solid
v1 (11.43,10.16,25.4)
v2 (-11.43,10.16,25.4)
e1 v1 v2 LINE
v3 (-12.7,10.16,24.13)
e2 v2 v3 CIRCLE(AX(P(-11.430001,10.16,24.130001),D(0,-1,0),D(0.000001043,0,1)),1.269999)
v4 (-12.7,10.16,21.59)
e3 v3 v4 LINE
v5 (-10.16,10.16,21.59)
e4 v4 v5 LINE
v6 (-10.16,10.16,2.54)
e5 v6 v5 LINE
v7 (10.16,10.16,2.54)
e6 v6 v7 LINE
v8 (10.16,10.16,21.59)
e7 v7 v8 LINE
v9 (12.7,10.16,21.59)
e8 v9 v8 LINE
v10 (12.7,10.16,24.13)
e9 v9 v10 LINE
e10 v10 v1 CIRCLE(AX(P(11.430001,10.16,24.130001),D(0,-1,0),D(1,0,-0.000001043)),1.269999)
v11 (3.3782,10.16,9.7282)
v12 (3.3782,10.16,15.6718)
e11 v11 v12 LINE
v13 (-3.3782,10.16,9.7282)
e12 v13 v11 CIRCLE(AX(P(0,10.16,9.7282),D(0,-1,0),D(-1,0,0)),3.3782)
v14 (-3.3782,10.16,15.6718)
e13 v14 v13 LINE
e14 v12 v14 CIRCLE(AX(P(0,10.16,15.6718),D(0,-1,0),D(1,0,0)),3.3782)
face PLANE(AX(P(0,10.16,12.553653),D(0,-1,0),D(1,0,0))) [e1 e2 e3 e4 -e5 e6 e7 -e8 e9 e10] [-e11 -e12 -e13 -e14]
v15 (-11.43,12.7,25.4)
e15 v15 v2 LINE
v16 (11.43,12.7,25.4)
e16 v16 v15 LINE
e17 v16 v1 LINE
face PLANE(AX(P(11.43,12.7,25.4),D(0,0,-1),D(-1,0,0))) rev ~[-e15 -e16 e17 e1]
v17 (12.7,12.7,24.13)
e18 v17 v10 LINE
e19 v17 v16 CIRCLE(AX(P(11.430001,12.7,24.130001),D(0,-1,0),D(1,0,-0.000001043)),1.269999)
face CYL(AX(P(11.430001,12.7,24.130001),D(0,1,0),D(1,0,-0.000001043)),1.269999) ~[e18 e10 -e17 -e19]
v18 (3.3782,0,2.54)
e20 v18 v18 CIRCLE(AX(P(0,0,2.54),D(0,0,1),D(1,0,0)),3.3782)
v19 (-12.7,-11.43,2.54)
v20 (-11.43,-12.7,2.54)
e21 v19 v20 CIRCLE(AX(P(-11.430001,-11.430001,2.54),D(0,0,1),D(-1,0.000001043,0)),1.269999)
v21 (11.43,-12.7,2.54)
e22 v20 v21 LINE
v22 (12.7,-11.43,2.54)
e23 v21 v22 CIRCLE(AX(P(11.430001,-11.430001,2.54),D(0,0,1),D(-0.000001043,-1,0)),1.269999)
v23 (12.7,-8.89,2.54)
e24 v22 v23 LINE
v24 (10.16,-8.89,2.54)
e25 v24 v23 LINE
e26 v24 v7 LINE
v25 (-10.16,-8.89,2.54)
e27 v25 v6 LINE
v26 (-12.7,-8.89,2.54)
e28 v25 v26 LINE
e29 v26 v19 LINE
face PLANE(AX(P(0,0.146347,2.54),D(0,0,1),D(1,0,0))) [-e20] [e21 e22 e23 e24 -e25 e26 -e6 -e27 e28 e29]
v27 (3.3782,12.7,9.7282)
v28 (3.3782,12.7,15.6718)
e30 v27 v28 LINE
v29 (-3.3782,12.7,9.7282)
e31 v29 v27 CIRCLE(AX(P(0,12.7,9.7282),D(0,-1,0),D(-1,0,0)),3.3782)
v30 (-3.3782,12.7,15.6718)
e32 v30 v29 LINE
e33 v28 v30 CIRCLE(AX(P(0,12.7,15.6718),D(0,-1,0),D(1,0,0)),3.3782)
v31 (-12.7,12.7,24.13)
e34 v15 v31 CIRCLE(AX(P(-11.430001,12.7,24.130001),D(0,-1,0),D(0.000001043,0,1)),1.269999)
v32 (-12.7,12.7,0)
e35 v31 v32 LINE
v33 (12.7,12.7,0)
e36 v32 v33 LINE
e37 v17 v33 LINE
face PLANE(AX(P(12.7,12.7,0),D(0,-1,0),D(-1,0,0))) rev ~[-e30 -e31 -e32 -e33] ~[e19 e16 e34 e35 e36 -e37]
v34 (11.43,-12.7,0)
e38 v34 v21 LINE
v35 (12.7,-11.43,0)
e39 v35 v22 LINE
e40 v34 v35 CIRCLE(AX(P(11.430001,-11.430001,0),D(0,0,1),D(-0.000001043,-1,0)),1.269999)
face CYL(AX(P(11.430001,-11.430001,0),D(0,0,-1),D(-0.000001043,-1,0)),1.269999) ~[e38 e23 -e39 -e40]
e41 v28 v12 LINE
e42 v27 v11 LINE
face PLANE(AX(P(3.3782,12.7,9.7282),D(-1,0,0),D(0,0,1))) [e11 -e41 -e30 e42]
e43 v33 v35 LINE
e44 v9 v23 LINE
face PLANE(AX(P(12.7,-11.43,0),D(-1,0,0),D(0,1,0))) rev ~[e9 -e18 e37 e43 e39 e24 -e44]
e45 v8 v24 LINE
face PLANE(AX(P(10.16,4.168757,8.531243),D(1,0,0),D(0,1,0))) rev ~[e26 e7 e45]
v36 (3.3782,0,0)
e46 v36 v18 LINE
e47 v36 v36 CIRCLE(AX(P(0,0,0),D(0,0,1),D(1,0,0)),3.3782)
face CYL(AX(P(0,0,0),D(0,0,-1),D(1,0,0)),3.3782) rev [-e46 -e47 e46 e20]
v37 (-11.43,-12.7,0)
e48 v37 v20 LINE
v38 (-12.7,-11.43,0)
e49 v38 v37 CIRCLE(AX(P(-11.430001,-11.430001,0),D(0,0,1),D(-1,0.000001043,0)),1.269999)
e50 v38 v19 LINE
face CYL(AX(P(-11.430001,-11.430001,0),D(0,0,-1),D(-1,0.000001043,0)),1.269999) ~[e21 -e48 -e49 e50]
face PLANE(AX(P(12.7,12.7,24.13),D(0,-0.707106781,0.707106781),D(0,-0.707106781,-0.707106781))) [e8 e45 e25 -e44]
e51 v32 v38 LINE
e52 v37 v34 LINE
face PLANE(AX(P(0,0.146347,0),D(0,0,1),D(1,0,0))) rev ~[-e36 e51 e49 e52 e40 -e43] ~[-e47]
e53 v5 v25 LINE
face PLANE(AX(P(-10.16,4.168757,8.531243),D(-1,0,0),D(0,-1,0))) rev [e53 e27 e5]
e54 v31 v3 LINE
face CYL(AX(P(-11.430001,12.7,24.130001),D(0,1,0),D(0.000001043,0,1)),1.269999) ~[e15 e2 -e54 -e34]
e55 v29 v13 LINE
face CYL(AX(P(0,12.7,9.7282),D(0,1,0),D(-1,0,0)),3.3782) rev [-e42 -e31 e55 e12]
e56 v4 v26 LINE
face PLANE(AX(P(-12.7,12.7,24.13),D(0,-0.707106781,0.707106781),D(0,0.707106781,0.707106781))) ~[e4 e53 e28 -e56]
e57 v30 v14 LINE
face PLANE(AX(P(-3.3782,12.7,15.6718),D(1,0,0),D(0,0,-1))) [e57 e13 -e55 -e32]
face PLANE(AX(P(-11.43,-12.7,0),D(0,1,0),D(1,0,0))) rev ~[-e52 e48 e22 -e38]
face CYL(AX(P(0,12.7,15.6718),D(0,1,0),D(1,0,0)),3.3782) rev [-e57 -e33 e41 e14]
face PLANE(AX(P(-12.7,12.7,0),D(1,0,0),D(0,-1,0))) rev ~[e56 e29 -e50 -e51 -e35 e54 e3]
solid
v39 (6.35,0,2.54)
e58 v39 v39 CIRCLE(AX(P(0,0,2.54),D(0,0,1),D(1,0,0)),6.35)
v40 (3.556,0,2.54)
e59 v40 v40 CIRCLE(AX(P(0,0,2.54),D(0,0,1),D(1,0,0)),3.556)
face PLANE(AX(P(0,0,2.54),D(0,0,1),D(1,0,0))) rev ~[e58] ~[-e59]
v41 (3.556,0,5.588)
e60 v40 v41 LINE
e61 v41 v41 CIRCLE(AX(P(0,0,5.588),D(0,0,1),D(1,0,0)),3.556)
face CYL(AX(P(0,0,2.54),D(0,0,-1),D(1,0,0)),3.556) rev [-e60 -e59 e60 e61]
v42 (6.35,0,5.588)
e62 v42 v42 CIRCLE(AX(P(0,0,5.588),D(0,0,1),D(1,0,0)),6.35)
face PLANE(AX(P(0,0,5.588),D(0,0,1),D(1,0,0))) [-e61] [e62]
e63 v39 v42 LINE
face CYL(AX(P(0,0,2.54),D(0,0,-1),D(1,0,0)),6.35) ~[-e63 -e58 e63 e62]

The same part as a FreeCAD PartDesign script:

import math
import FreeCAD as App
import Part
import Sketcher
Q = App.Units.Quantity

doc = App.newDocument("Part")
body = doc.addObject("PartDesign::Body", "Body")

sketch1 = body.newObject("Sketcher::SketchObject", "Sketch")
sketch1.AttachmentSupport = (doc.getObject("XY_Plane"), [""])
sketch1.MapMode = "FlatFace"
sketch1.addGeometry(Part.LineSegment(App.Vector(-12.7, 12.7, 0), App.Vector(-12.7, -11.4, 0)), False)
sketch1.addGeometry(Part.ArcOfCircle(Part.Circle(App.Vector(-11.4, -11.4, 0), App.Vector(0, 0, 1), 1.3), math.radians(180), math.radians(270)), False)
sketch1.addGeometry(Part.LineSegment(App.Vector(-11.4, -12.7, 0), App.Vector(11.4, -12.7, 0)), False)
sketch1.addGeometry(Part.ArcOfCircle(Part.Circle(App.Vector(11.4, -11.4, 0), App.Vector(0, 0, 1), 1.3), math.radians(-90), math.radians(0)), False)
sketch1.addGeometry(Part.LineSegment(App.Vector(12.7, -11.4, 0), App.Vector(12.7, 12.7, 0)), False)
sketch1.addGeometry(Part.LineSegment(App.Vector(12.7, 12.7, 0), App.Vector(-12.7, 12.7, 0)), False)
sketch1.addGeometry(Part.Circle(App.Vector(0, 0, 0), App.Vector(0, 0, 1), 3.4), False)
sketch1.addConstraint(Sketcher.Constraint("Tangent", 0, 2, 1, 1))
sketch1.addConstraint(Sketcher.Constraint("Tangent", 1, 2, 2, 1))
sketch1.addConstraint(Sketcher.Constraint("Tangent", 2, 2, 3, 1))
sketch1.addConstraint(Sketcher.Constraint("Tangent", 3, 2, 4, 1))
sketch1.addConstraint(Sketcher.Constraint("Coincident", 4, 2, 5, 1))
sketch1.addConstraint(Sketcher.Constraint("Coincident", 5, 2, 0, 1))
sketch1.addConstraint(Sketcher.Constraint("Vertical", 0))
sketch1.addConstraint(Sketcher.Constraint("Horizontal", 2))
sketch1.addConstraint(Sketcher.Constraint("Vertical", 4))
sketch1.addConstraint(Sketcher.Constraint("Horizontal", 5))
sketch1.addConstraint(Sketcher.Constraint("Coincident", 6, 3, -1, 1))
sketch1.addConstraint(Sketcher.Constraint("Equal", 1, 3))
sketch1.addConstraint(Sketcher.Constraint("DistanceX", 5, 2, 5, 1, Q("1 in")))
sketch1.addConstraint(Sketcher.Constraint("Radius", 1, Q("0.0499999 in")))
sketch1.addConstraint(Sketcher.Constraint("Diameter", 6, Q("0.266 in")))
sketch1.addConstraint(Sketcher.Constraint("DistanceY", 2, 2, 4, 2, Q("1 in")))
sketch1.addConstraint(Sketcher.Constraint("DistanceX", 0, 2, -1, 1, Q("0.5 in")))
sketch1.addConstraint(Sketcher.Constraint("DistanceY", 1, 2, -1, 1, Q("0.5 in")))
pad1 = body.newObject("PartDesign::Pad", "Pad")
pad1.Profile = sketch1
pad1.Length = Q("0.1 in")

sketch2 = body.newObject("Sketcher::SketchObject", "Sketch001")
sketch2.AttachmentSupport = (doc.getObject("XZ_Plane"), [""])
sketch2.MapMode = "FlatFace"
sketch2.AttachmentOffset = App.Placement(App.Vector(0, 0, -0.5 * 25.4), App.Rotation())
sketch2.addGeometry(Part.LineSegment(App.Vector(-12.7, 0, 0), App.Vector(12.7, 0, 0)), False)
sketch2.addGeometry(Part.LineSegment(App.Vector(12.7, 0, 0), App.Vector(12.7, 24.1, 0)), False)
sketch2.addGeometry(Part.ArcOfCircle(Part.Circle(App.Vector(11.4, 24.1, 0), App.Vector(0, 0, 1), 1.3), math.radians(0), math.radians(90)), False)
sketch2.addGeometry(Part.LineSegment(App.Vector(11.4, 25.4, 0), App.Vector(-11.4, 25.4, 0)), False)
sketch2.addGeometry(Part.ArcOfCircle(Part.Circle(App.Vector(-11.4, 24.1, 0), App.Vector(0, 0, 1), 1.3), math.radians(90), math.radians(180)), False)
sketch2.addGeometry(Part.LineSegment(App.Vector(-12.7, 24.1, 0), App.Vector(-12.7, 0, 0)), False)
sketch2.addGeometry(Part.LineSegment(App.Vector(-3.4, 9.7, 0), App.Vector(-3.4, 15.7, 0)), False)
sketch2.addGeometry(Part.ArcOfCircle(Part.Circle(App.Vector(0, 15.7, 0), App.Vector(0, 0, 1), 3.4), math.radians(0), math.radians(180)), False)
sketch2.addGeometry(Part.LineSegment(App.Vector(3.4, 15.7, 0), App.Vector(3.4, 9.7, 0)), False)
sketch2.addGeometry(Part.ArcOfCircle(Part.Circle(App.Vector(0, 9.7, 0), App.Vector(0, 0, 1), 3.4), math.radians(180), math.radians(360)), False)
sketch2.addConstraint(Sketcher.Constraint("Coincident", 0, 2, 1, 1))
sketch2.addConstraint(Sketcher.Constraint("Tangent", 1, 2, 2, 1))
sketch2.addConstraint(Sketcher.Constraint("Tangent", 2, 2, 3, 1))
sketch2.addConstraint(Sketcher.Constraint("Tangent", 3, 2, 4, 1))
sketch2.addConstraint(Sketcher.Constraint("Tangent", 4, 2, 5, 1))
sketch2.addConstraint(Sketcher.Constraint("Coincident", 5, 2, 0, 1))
sketch2.addConstraint(Sketcher.Constraint("Tangent", 6, 2, 7, 2))
sketch2.addConstraint(Sketcher.Constraint("Tangent", 7, 1, 8, 1))
sketch2.addConstraint(Sketcher.Constraint("Tangent", 8, 2, 9, 2))
sketch2.addConstraint(Sketcher.Constraint("Tangent", 9, 1, 6, 1))
sketch2.addConstraint(Sketcher.Constraint("Horizontal", 0))
sketch2.addConstraint(Sketcher.Constraint("Vertical", 1))
sketch2.addConstraint(Sketcher.Constraint("Horizontal", 3))
sketch2.addConstraint(Sketcher.Constraint("Vertical", 5))
sketch2.addConstraint(Sketcher.Constraint("Vertical", 6))
sketch2.addConstraint(Sketcher.Constraint("Vertical", 8))
sketch2.addConstraint(Sketcher.Constraint("Equal", 2, 4))
sketch2.addConstraint(Sketcher.Constraint("Symmetric", 0, 2, 5, 2, -1, 1))
sketch2.addConstraint(Sketcher.Constraint("PointOnObject", 7, 3, -2))
sketch2.addConstraint(Sketcher.Constraint("DistanceX", 0, 1, 0, 2, Q("1 in")))
sketch2.addConstraint(Sketcher.Constraint("Radius", 2, Q("0.0499999 in")))
sketch2.addConstraint(Sketcher.Constraint("DistanceY", -1, 1, 2, 2, Q("1 in")))
sketch2.addConstraint(Sketcher.Constraint("Radius", 7, Q("0.133 in")))
sketch2.addConstraint(Sketcher.Constraint("DistanceY", 6, 1, 6, 2, Q("0.234 in")))
sketch2.addConstraint(Sketcher.Constraint("DistanceY", -1, 1, 7, 3, Q("0.617 in")))
pad2 = body.newObject("PartDesign::Pad", "Pad001")
pad2.Profile = sketch2
pad2.Length = Q("0.1 in")

sketch3 = body.newObject("Sketcher::SketchObject", "Sketch002")
sketch3.AttachmentSupport = (doc.getObject("YZ_Plane"), [""])
sketch3.MapMode = "FlatFace"
sketch3.AttachmentOffset = App.Placement(App.Vector(0, 0, 0.5 * 25.4), App.Rotation())
sketch3.addGeometry(Part.LineSegment(App.Vector(13, 0, 0), App.Vector(13, 24, 0)), False)
sketch3.addGeometry(Part.LineSegment(App.Vector(13, 24, 0), App.Vector(-11, 0, 0)), False)
sketch3.addGeometry(Part.LineSegment(App.Vector(-11, 0, 0), App.Vector(13, 0, 0)), False)
sketch3.addConstraint(Sketcher.Constraint("Coincident", 0, 2, 1, 1))
sketch3.addConstraint(Sketcher.Constraint("Coincident", 1, 2, 2, 1))
sketch3.addConstraint(Sketcher.Constraint("Coincident", 2, 2, 0, 1))
sketch3.addConstraint(Sketcher.Constraint("Vertical", 0))
sketch3.addConstraint(Sketcher.Constraint("Horizontal", 2))
sketch3.addConstraint(Sketcher.Constraint("PointOnObject", 1, 2, -1))
sketch3.addConstraint(Sketcher.Constraint("Equal", 2, 0))
sketch3.addConstraint(Sketcher.Constraint("DistanceX", 2, 1, 2, 2, Q("0.95 in")))
sketch3.addConstraint(Sketcher.Constraint("DistanceX", -1, 1, 0, 2, Q("0.5 in")))
pad3 = body.newObject("PartDesign::Pad", "Pad002")
pad3.Profile = sketch3
pad3.Length = Q("0.1 in")
pad3.Reversed = True
doc.recompute()

mirrored = body.newObject("PartDesign::Mirrored", "Mirrored")
mirrored.Originals = [pad3]
mirrored.MirrorPlane = (doc.getObject("YZ_Plane"), [""])
body.Tip = mirrored
body2 = doc.addObject("PartDesign::Body", "Body001")

sketch4 = body2.newObject("Sketcher::SketchObject", "Sketch003")
sketch4.AttachmentSupport = (doc.getObject("XY_Plane001"), [""])
sketch4.MapMode = "FlatFace"
sketch4.AttachmentOffset = App.Placement(App.Vector(0, 0, 0.1 * 25.4), App.Rotation())
sketch4.addGeometry(Part.Circle(App.Vector(0, 0, 0), App.Vector(0, 0, 1), 6.3), False)
sketch4.addGeometry(Part.Circle(App.Vector(0, 0, 0), App.Vector(0, 0, 1), 3.6), False)
sketch4.addConstraint(Sketcher.Constraint("Coincident", 0, 3, -1, 1))
sketch4.addConstraint(Sketcher.Constraint("Coincident", 1, 3, -1, 1))
sketch4.addConstraint(Sketcher.Constraint("Diameter", 0, Q("0.5 in")))
sketch4.addConstraint(Sketcher.Constraint("Diameter", 1, Q("0.28 in")))
pad4 = body2.newObject("PartDesign::Pad", "Pad003")
pad4.Profile = sketch4
pad4.Length = Q("0.12 in")

doc.recompute()
